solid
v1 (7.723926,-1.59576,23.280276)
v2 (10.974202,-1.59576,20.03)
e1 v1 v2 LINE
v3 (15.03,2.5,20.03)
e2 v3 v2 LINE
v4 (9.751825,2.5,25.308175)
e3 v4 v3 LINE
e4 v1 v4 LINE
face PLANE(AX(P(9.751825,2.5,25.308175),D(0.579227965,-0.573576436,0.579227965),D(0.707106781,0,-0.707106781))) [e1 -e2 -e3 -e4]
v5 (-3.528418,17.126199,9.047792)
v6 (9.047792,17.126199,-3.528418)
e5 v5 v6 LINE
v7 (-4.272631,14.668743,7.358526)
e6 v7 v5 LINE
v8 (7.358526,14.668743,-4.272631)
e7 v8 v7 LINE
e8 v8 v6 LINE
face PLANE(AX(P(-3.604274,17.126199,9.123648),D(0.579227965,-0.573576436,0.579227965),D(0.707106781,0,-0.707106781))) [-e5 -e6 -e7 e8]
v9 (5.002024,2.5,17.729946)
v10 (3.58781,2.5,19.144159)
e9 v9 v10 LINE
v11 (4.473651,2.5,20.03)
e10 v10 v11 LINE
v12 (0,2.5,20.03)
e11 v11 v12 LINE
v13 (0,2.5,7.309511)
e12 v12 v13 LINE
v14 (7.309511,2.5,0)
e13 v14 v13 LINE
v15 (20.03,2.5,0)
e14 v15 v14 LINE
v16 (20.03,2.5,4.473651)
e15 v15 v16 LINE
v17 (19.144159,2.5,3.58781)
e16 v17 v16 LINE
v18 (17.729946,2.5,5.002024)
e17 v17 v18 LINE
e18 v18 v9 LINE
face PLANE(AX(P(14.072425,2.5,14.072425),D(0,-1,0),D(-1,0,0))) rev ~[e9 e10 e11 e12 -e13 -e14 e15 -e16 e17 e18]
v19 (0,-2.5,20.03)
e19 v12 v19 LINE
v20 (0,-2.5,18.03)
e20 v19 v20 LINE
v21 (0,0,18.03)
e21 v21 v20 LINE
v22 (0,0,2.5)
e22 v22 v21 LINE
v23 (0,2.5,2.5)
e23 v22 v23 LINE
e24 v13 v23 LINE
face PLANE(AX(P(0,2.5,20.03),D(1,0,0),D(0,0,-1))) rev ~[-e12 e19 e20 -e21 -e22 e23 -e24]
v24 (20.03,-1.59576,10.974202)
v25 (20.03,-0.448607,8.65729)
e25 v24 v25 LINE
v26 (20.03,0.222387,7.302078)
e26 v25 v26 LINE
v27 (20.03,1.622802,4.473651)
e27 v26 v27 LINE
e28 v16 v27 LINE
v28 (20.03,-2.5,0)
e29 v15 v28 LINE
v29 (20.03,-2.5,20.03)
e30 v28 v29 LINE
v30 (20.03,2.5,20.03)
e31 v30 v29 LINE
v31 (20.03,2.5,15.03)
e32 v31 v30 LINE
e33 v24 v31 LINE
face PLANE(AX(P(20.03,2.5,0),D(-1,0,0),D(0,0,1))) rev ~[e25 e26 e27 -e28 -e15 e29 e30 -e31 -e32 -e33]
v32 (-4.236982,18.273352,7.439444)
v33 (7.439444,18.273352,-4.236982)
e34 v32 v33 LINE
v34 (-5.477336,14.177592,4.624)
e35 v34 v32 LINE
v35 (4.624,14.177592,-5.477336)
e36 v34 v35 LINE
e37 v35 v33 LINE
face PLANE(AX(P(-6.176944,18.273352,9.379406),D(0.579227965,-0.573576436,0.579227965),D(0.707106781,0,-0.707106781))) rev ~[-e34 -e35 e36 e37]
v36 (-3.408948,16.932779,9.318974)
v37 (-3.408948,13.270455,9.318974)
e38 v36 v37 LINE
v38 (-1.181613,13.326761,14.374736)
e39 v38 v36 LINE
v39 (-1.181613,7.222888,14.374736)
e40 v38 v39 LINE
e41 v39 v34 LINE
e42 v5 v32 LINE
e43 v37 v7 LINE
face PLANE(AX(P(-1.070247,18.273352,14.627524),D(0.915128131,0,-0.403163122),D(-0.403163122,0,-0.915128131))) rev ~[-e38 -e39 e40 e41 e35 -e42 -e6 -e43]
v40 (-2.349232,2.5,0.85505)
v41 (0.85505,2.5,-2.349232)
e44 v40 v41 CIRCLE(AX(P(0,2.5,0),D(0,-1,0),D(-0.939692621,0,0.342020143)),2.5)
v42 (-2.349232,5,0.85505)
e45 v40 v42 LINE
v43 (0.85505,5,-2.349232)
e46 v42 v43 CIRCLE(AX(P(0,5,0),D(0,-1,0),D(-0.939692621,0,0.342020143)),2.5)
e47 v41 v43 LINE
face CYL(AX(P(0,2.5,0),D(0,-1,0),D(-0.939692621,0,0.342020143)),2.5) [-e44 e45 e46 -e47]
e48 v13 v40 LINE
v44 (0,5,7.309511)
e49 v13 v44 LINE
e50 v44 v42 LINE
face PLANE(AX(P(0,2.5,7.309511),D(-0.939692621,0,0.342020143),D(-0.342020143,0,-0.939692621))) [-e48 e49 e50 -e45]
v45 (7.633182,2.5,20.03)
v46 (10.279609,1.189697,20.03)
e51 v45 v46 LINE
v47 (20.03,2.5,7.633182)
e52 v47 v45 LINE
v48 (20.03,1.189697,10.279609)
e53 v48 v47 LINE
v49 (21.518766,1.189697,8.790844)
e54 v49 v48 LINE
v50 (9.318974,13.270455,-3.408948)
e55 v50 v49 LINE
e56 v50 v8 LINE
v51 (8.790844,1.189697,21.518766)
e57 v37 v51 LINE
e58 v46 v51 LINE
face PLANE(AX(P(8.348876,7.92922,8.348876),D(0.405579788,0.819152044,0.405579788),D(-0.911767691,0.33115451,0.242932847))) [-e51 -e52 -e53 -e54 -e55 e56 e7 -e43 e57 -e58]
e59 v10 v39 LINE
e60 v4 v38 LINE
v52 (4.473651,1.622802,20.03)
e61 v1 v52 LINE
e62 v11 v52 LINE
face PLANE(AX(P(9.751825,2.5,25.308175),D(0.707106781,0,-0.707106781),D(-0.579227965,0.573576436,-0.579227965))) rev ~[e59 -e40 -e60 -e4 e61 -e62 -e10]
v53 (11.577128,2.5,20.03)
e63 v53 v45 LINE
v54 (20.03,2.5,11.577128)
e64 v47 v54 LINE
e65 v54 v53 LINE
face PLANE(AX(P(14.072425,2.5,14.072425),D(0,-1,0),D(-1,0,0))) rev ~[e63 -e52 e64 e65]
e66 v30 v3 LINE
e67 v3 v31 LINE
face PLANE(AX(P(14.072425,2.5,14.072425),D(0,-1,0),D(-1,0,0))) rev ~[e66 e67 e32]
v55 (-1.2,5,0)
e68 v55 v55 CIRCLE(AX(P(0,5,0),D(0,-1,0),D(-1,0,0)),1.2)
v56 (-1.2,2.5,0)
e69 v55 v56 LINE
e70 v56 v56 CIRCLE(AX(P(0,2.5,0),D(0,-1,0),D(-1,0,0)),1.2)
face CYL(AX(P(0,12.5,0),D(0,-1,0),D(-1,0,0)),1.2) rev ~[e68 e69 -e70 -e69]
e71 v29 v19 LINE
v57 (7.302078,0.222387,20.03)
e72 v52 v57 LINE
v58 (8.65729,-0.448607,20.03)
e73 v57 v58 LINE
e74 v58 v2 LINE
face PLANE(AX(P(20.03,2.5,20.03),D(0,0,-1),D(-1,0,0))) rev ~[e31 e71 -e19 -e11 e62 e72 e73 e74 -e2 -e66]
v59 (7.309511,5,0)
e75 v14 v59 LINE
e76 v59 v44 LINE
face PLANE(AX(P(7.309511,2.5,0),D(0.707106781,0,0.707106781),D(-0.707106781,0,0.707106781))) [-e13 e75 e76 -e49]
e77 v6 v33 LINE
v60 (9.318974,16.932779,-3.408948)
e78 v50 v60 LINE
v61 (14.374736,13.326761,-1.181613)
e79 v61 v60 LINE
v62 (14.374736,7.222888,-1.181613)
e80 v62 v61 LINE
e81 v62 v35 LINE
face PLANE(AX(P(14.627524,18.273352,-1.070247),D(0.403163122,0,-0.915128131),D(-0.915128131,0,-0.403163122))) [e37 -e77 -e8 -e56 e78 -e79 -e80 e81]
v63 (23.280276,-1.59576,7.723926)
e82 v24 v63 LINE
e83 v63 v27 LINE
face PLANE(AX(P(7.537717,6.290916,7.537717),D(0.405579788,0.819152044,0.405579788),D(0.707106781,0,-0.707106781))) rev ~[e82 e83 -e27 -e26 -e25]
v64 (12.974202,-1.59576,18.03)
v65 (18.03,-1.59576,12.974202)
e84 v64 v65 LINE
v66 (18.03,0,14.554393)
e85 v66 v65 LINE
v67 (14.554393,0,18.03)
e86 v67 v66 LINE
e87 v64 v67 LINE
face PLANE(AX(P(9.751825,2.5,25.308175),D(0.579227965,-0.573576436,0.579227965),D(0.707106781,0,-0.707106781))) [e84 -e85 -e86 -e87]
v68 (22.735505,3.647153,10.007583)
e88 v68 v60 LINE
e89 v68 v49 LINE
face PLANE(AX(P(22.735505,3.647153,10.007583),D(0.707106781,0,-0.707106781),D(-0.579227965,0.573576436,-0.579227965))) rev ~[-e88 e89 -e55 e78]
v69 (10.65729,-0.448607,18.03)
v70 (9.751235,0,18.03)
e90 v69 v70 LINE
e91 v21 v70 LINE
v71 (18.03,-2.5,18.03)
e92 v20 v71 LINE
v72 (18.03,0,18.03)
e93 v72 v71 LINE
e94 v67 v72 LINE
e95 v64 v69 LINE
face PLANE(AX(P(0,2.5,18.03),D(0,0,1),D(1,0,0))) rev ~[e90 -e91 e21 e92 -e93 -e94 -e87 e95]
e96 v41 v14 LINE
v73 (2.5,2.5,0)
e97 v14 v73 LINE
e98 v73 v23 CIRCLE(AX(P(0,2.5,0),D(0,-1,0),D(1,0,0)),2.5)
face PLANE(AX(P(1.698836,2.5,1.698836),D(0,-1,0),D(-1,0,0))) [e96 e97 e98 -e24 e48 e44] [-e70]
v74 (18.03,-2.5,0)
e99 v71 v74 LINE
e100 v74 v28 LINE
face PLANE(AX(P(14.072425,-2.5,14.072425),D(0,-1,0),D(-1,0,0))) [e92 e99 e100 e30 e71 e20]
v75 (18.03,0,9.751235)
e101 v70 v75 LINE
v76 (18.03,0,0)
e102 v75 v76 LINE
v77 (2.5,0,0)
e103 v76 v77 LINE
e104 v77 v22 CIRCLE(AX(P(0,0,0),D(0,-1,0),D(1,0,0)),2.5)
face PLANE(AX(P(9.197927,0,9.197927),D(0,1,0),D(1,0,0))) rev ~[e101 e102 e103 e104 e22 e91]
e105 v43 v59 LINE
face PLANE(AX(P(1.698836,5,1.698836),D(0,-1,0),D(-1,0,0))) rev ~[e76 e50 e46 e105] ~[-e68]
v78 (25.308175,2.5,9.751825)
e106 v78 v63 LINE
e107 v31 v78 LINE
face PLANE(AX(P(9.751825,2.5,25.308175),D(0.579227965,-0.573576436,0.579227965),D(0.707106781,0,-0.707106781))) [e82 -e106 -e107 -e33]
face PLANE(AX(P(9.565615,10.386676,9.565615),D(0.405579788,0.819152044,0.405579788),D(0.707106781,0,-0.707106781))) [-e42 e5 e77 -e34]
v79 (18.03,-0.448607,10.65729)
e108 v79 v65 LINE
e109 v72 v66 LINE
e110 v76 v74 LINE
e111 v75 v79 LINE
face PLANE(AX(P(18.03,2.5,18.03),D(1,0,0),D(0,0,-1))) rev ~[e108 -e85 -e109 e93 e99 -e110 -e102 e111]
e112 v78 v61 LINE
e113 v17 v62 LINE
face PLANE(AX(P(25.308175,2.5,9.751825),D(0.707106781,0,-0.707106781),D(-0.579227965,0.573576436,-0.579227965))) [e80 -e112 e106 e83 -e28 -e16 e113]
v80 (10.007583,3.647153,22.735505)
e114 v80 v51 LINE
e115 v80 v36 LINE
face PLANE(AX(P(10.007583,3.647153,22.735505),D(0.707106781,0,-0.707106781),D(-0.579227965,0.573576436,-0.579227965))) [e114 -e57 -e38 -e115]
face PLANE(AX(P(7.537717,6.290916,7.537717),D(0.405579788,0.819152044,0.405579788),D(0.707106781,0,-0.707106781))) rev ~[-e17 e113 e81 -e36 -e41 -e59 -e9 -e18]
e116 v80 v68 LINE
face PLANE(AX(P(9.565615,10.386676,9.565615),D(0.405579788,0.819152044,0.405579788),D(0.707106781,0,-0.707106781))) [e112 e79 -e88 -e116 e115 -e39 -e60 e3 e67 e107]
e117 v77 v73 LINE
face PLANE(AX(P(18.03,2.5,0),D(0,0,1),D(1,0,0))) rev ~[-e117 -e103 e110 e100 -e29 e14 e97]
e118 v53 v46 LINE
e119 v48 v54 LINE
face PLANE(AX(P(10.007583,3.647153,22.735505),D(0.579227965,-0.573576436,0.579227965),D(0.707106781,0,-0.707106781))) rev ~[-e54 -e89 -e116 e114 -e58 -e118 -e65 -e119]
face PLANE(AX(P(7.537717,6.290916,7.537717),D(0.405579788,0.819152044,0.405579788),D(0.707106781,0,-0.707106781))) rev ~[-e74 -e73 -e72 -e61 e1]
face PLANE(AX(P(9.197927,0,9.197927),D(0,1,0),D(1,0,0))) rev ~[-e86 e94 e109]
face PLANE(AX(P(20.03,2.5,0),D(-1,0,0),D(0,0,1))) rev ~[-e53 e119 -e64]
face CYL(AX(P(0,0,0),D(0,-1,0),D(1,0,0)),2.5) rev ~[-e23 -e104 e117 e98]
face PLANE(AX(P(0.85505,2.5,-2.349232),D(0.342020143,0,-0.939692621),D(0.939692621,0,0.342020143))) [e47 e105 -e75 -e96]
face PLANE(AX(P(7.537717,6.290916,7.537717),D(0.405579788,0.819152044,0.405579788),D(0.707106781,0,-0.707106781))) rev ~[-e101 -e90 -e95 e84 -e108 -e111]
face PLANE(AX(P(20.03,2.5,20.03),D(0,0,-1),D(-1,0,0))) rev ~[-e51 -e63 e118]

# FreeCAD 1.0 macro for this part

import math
import FreeCAD as App
import Part
import Sketcher
Q = App.Units.Quantity

doc = App.newDocument("Part")
body = doc.addObject("PartDesign::Body", "Body")

# Sketch on XZ plane
sketch1 = body.newObject("Sketcher::SketchObject", "Sketch")
sketch1.AttachmentSupport = (doc.getObject("XZ_Plane"), [""])
sketch1.MapMode = "FlatFace"
sketch1.addGeometry([
    Part.LineSegment(App.Vector(0, 2.5, 0), App.Vector(0, 18.03, 0)),  # 0
    Part.LineSegment(App.Vector(0, 18.03, 0), App.Vector(18.03, 18.03, 0)),  # 1
    Part.LineSegment(App.Vector(18.03, 18.03, 0), App.Vector(18.03, 0, 0)),  # 2
    Part.LineSegment(App.Vector(18.03, 0, 0), App.Vector(2.5, 0, 0)),  # 3
    Part.ArcOfCircle(Part.Circle(App.Vector(0, 0, 0), App.Vector(0, 0, 1), 2.5), math.radians(0), math.radians(90)),  # 4
], False)
sketch1.addConstraint([
    Sketcher.Constraint("Coincident", 0, 2, 1, 1),
    Sketcher.Constraint("Coincident", 1, 2, 2, 1),
    Sketcher.Constraint("Coincident", 2, 2, 3, 1),
    Sketcher.Constraint("Coincident", 3, 2, 4, 1),
    Sketcher.Constraint("Coincident", 4, 2, 0, 1),
    Sketcher.Constraint("Vertical", 0),
    Sketcher.Constraint("Horizontal", 1),
    Sketcher.Constraint("Vertical", 2),
    Sketcher.Constraint("Horizontal", 3),
    Sketcher.Constraint("Coincident", 4, 3, -1, 1),
    Sketcher.Constraint("PointOnObject", 0, 2, -2),
    Sketcher.Constraint("PointOnObject", 2, 2, -1),
    Sketcher.Constraint("Equal", 3, 0),
    Sketcher.Constraint("Radius", 4, Q("2.5 mm")),
    Sketcher.Constraint("DistanceX", 1, 1, 1, 2, Q("18.03 mm")),
])
pad1 = body.newObject("PartDesign::Pad", "Pad")
pad1.Profile = sketch1
pad1.Length = 2.5
pad1.Reversed = True

# Sketch on XZ plane
sketch2 = body.newObject("Sketcher::SketchObject", "Sketch001")
sketch2.AttachmentSupport = (doc.getObject("XZ_Plane"), [""])
sketch2.MapMode = "FlatFace"
sketch2.AttachmentOffset = App.Placement(App.Vector(0, 0, -2.5), App.Rotation())
sketch2.addGeometry([
    Part.LineSegment(App.Vector(0, 18.03, 0), App.Vector(0, 20.03, 0)),  # 0
    Part.LineSegment(App.Vector(0, 20.03, 0), App.Vector(20.03, 20.03, 0)),  # 1
    Part.LineSegment(App.Vector(20.03, 20.03, 0), App.Vector(20.03, 0, 0)),  # 2
    Part.LineSegment(App.Vector(20.03, 0, 0), App.Vector(18.03, 0, 0)),  # 3
    Part.LineSegment(App.Vector(18.03, 0, 0), App.Vector(18.03, 18.03, 0)),  # 4
    Part.LineSegment(App.Vector(18.03, 18.03, 0), App.Vector(0, 18.03, 0)),  # 5
], False)
sketch2.addConstraint([
    Sketcher.Constraint("Coincident", 0, 2, 1, 1),
    Sketcher.Constraint("Coincident", 1, 2, 2, 1),
    Sketcher.Constraint("Coincident", 2, 2, 3, 1),
    Sketcher.Constraint("Coincident", 3, 2, 4, 1),
    Sketcher.Constraint("Coincident", 4, 2, 5, 1),
    Sketcher.Constraint("Coincident", 5, 2, 0, 1),
    Sketcher.Constraint("Vertical", 0),
    Sketcher.Constraint("Horizontal", 1),
    Sketcher.Constraint("Vertical", 2),
    Sketcher.Constraint("Horizontal", 3),
    Sketcher.Constraint("Vertical", 4),
    Sketcher.Constraint("Horizontal", 5),
    Sketcher.Constraint("PointOnObject", 0, 2, -2),
    Sketcher.Constraint("PointOnObject", 2, 2, -1),
    Sketcher.Constraint("Equal", 3, 0),
    Sketcher.Constraint("Equal", 1, 2),
    Sketcher.Constraint("DistanceX", 3, 2, 3, 1, Q("2 mm")),
    Sketcher.Constraint("DistanceX", 1, 1, 1, 2, Q("20.03 mm")),
])
pad2 = body.newObject("PartDesign::Pad", "Pad001")
pad2.Profile = sketch2
pad2.Length = 5

# Sketch on XZ plane
sketch3 = body.newObject("Sketcher::SketchObject", "Sketch002")
sketch3.AttachmentSupport = (doc.getObject("XZ_Plane"), [""])
sketch3.MapMode = "FlatFace"
sketch3.AttachmentOffset = App.Placement(App.Vector(0, 0, -2.5), App.Rotation())
sketch3.addGeometry([
    Part.LineSegment(App.Vector(7.309511, 0, 0), App.Vector(0.85505, -2.349232, 0)),
    Part.ArcOfCircle(Part.Circle(App.Vector(0, 0, 0), App.Vector(0, 0, 1), 2.5), math.radians(160), math.radians(290)),
    Part.LineSegment(App.Vector(-2.349232, 0.85505, 0), App.Vector(0, 7.309511, 0)),
    Part.LineSegment(App.Vector(0, 7.309511, 0), App.Vector(7.309511, 0, 0)),
], False)
sketch3.addConstraint([
    Sketcher.Constraint("Tangent", 0, 2, 1, 2),
    Sketcher.Constraint("Tangent", 1, 1, 2, 1),
    Sketcher.Constraint("Coincident", 2, 2, 3, 1),
    Sketcher.Constraint("Coincident", 3, 2, 0, 1),
    Sketcher.Constraint("Coincident", 1, 3, -1, 1),
    Sketcher.Constraint("PointOnObject", 2, 2, -2),
    Sketcher.Constraint("PointOnObject", 3, 2, -1),
    Sketcher.Constraint("Equal", 0, 2),
    Sketcher.Constraint("Radius", 1, Q("2.5 mm")),
    Sketcher.Constraint("Angle", 0, Q("-160 deg")),
])
pad3 = body.newObject("PartDesign::Pad", "Pad002")
pad3.Profile = sketch3
pad3.Length = 2.5
pad3.Reversed = True

# Sketch on an angled plane
sketch4 = body.newObject("Sketcher::SketchObject", "Sketch003")
sketch4.Placement = App.Placement(App.Vector(6.597772, 13.325562, 6.597772), App.Rotation(App.Vector(0.707106781, 0, -0.707106781), App.Vector(-0.579227965, 0.573576437, -0.579227965), App.Vector(0.405579788, 0.819152044, 0.405579788), "ZXY"))
sketch4.addGeometry([
    Part.LineSegment(App.Vector(-11, 8.626209, 0), App.Vector(-11, -18.873791, 0)),  # 0
    Part.LineSegment(App.Vector(-11, -18.873791, 0), App.Vector(11, -18.873791, 0)),  # 1
    Part.LineSegment(App.Vector(11, -18.873791, 0), App.Vector(11, 8.626209, 0)),  # 2
    Part.LineSegment(App.Vector(11, 8.626209, 0), App.Vector(-11, 8.626209, 0)),  # 3
    Part.LineSegment(App.Vector(9, -16.873791, 0), App.Vector(-9, -16.873791, 0)),  # 4
    Part.LineSegment(App.Vector(-9, -16.873791, 0), App.Vector(-9, 6.626209, 0)),  # 5
    Part.LineSegment(App.Vector(-9, 6.626209, 0), App.Vector(9, 6.626209, 0)),  # 6
    Part.LineSegment(App.Vector(9, 6.626209, 0), App.Vector(9, -16.873791, 0)),  # 7
], False)
sketch4.addConstraint([
    Sketcher.Constraint("Coincident", 0, 2, 1, 1),
    Sketcher.Constraint("Coincident", 1, 2, 2, 1),
    Sketcher.Constraint("Coincident", 2, 2, 3, 1),
    Sketcher.Constraint("Coincident", 3, 2, 0, 1),
    Sketcher.Constraint("Coincident", 4, 2, 5, 1),
    Sketcher.Constraint("Coincident", 5, 2, 6, 1),
    Sketcher.Constraint("Coincident", 6, 2, 7, 1),
    Sketcher.Constraint("Coincident", 7, 2, 4, 1),
    Sketcher.Constraint("Vertical", 0),
    Sketcher.Constraint("Horizontal", 1),
    Sketcher.Constraint("Vertical", 2),
    Sketcher.Constraint("Horizontal", 3),
    Sketcher.Constraint("Horizontal", 4),
    Sketcher.Constraint("Vertical", 5),
    Sketcher.Constraint("Horizontal", 6),
    Sketcher.Constraint("Vertical", 7),
    Sketcher.Constraint("DistanceX", 1, 1, 1, 2, Q("22 mm")),
    Sketcher.Constraint("DistanceX", 4, 2, 4, 1, Q("18 mm")),
    Sketcher.Constraint("DistanceY", 0, 2, 0, 1, Q("27.5 mm")),
    Sketcher.Constraint("DistanceY", 5, 1, 5, 2, Q("23.5 mm")),
    Sketcher.Constraint("DistanceX", 0, 2, -1, 1, Q("11 mm")),
    Sketcher.Constraint("DistanceX", 4, 2, -1, 1, Q("9 mm")),
    Sketcher.Constraint("DistanceY", 0, 2, 4, 2, Q("2 mm")),
    Sketcher.Constraint("DistanceY", 0, 2, -1, 1, Q("18.873791 mm")),
])
pad4 = body.newObject("PartDesign::Pad", "Pad003")
pad4.Profile = sketch4
pad4.Length = 5
pad4.Reversed = True

# Sketch on XZ plane
sketch5 = body.newObject("Sketcher::SketchObject", "Sketch004")
sketch5.AttachmentSupport = (doc.getObject("XZ_Plane"), [""])
sketch5.MapMode = "FlatFace"
sketch5.AttachmentOffset = App.Placement(App.Vector(0, 0, -5), App.Rotation())
sketch5.addGeometry(Part.Circle(App.Vector(0, 0, 0), App.Vector(0, 0, 1), 1.2), False)
sketch5.addConstraint([
    Sketcher.Constraint("Coincident", 0, 3, -1, 1),
    Sketcher.Constraint("Diameter", 0, Q("2.4 mm")),
])
doc.recompute()
hole = body.newObject("PartDesign::Hole", "Hole")
hole.Profile = sketch5
hole.ThreadType = "None"
hole.Diameter = 2.4
hole.DepthType = "Dimension"
hole.Depth = 7.5
hole.DrillPoint = "Flat"
hole.Reversed = True

# Sketch on an angled plane
sketch6 = body.newObject("Sketcher::SketchObject", "Sketch005")
sketch6.Placement = App.Placement(App.Vector(4.569873, 9.229802, 4.569873), App.Rotation(App.Vector(0.911767691, -0.33115451, -0.242932847), App.Vector(0.064689362, -0.468323199, 0.881185944), App.Vector(-0.405579788, -0.819152044, -0.405579788), "ZXY"))
sketch6.addGeometry([
    Part.LineSegment(App.Vector(1.915326, 21.761239, 0), App.Vector(-13.961806, -0.692417, 0)),
    Part.LineSegment(App.Vector(-13.961806, -0.692417, 0), App.Vector(4.001119, -13.394123, 0)),
    Part.LineSegment(App.Vector(4.001119, -13.394123, 0), App.Vector(19.878251, 9.059533, 0)),
    Part.LineSegment(App.Vector(19.878251, 9.059533, 0), App.Vector(1.915326, 21.761239, 0)),
], False)
sketch6.addConstraint([
    Sketcher.Constraint("Coincident", 0, 2, 1, 1),
    Sketcher.Constraint("Coincident", 1, 2, 2, 1),
    Sketcher.Constraint("Coincident", 2, 2, 3, 1),
    Sketcher.Constraint("Coincident", 3, 2, 0, 1),
    Sketcher.Constraint("Perpendicular", 0, 1),
    Sketcher.Constraint("Perpendicular", 1, 2),
    Sketcher.Constraint("Perpendicular", 2, 3),
    Sketcher.Constraint("Distance", 1, Q("22 mm")),
    Sketcher.Constraint("Distance", 0, Q("27.5 mm")),
    Sketcher.Constraint("DistanceX", -1, 1, 1, 2, Q("4.001119 mm")),
    Sketcher.Constraint("DistanceX", -1, 1, 2, 2, Q("19.878251 mm")),
    Sketcher.Constraint("DistanceY", -1, 1, 3, 2, Q("21.761239 mm")),
])
pad5 = body.newObject("PartDesign::Pad", "Pad004")
pad5.Profile = sketch6
pad5.Length = 2
pad5.Reversed = True

# Sketch on XZ plane
sketch7 = body.newObject("Sketcher::SketchObject", "Sketch006")
sketch7.AttachmentSupport = (doc.getObject("XZ_Plane"), [""])
sketch7.MapMode = "FlatFace"
sketch7.AttachmentOffset = App.Placement(App.Vector(0, 0, -18.273352), App.Rotation())
sketch7.addGeometry([
    Part.LineSegment(App.Vector(-8.346264, 7.351507, 0), App.Vector(-1.070247, 14.627524, 0)),  # 0
    Part.LineSegment(App.Vector(-1.070247, 14.627524, 0), App.Vector(-5.520586, 4.525829, 0)),  # 1
    Part.LineSegment(App.Vector(-5.520586, 4.525829, 0), App.Vector(-8.346264, 7.351507, 0)),  # 2
    Part.LineSegment(App.Vector(14.627524, -1.070247, 0), App.Vector(7.351507, -8.346264, 0)),  # 3
    Part.LineSegment(App.Vector(7.351507, -8.346264, 0), App.Vector(4.525829, -5.520586, 0)),  # 4
    Part.LineSegment(App.Vector(4.525829, -5.520586, 0), App.Vector(14.627524, -1.070247, 0)),  # 5
], False)
sketch7.addConstraint([
    Sketcher.Constraint("Coincident", 0, 2, 1, 1),
    Sketcher.Constraint("Coincident", 1, 2, 2, 1),
    Sketcher.Constraint("Coincident", 2, 2, 0, 1),
    Sketcher.Constraint("Coincident", 3, 2, 4, 1),
    Sketcher.Constraint("Coincident", 4, 2, 5, 1),
    Sketcher.Constraint("Coincident", 5, 2, 3, 1),
    Sketcher.Constraint("Perpendicular", 0, 2),
    Sketcher.Constraint("Perpendicular", 2, 3),
    Sketcher.Constraint("Perpendicular", 3, 4),
    Sketcher.Constraint("Equal", 0, 3),
    Sketcher.Constraint("Equal", 2, 4),
    Sketcher.Constraint("Angle", 0, Q("45 deg")),
    Sketcher.Constraint("Distance", 1, Q("11.038558 mm")),
    Sketcher.Constraint("Distance", 2, Q("3.996112 mm")),
    Sketcher.Constraint("DistanceY", -1, 1, 1, 2, Q("4.525829 mm")),
    Sketcher.Constraint("DistanceX", -1, 1, 4, 2, Q("4.525829 mm")),
    Sketcher.Constraint("DistanceX", 2, 2, 3, 2, Q("15.697771 mm")),
    Sketcher.Constraint("DistanceY", 3, 2, 2, 2, Q("15.697771 mm")),
])
pocket1 = body.newObject("PartDesign::Pocket", "Pocket")
pocket1.Profile = sketch7
pocket1.Type = "ThroughAll"
pocket1.Reversed = True

doc.recompute()
